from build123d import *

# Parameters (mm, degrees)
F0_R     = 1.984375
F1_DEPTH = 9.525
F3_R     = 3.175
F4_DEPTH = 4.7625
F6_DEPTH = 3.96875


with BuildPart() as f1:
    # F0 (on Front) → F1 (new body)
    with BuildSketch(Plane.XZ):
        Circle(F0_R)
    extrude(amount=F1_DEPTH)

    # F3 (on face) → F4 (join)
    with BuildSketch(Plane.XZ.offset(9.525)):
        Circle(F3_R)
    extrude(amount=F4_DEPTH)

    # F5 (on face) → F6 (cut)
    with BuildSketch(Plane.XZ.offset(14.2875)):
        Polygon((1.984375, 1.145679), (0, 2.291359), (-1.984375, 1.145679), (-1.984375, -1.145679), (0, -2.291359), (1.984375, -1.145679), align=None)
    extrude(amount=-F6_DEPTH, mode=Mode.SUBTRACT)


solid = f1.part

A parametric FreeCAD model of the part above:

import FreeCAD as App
import Part
import Sketcher

V = App.Vector
Q = App.Units.Quantity


def add_polygon(sketch, points):
    """Adds a closed chain of lines whose ends are joined by coincident constraints."""
    first, n = sketch.GeometryCount, len(points)
    for a, b in zip(points, points[1:] + points[:1]):
        sketch.addGeometry(Part.LineSegment(App.Vector(*a, 0), App.Vector(*b, 0)), False)
    for i in range(n):
        sketch.addConstraint(Sketcher.Constraint("Coincident", first + i, 2, first + (i + 1) % n, 1))

doc = App.newDocument("Part")
body = doc.addObject("PartDesign::Body", "Body")

# Sketch on XZ plane
sketch1 = body.newObject("Sketcher::SketchObject", "Sketch")
sketch1.AttachmentSupport = (doc.getObject("XZ_Plane"), [""])
sketch1.MapMode = "FlatFace"
sketch1.addGeometry(Part.Circle(V(0, 0, 0), V(0, 0, 1), 2), False)
sketch1.addConstraint(Sketcher.Constraint("Coincident", 0, 3, -1, 1))
sketch1.addConstraint(Sketcher.Constraint("Diameter", 0, Q("0.15625 in")))
pad1 = body.newObject("PartDesign::Pad", "Pad")
pad1.Profile = sketch1
pad1.Length = Q("0.375 in")

# Sketch on XZ plane
sketch2 = body.newObject("Sketcher::SketchObject", "Sketch001")
sketch2.AttachmentSupport = (doc.getObject("XZ_Plane"), [""])
sketch2.MapMode = "FlatFace"
sketch2.AttachmentOffset = App.Placement(V(0, 0, 0.375 * 25.4), App.Rotation())
sketch2.addGeometry(Part.Circle(V(0, 0, 0), V(0, 0, 1), 3.2), False)
sketch2.addConstraint(Sketcher.Constraint("Coincident", 0, 3, -1, 1))
sketch2.addConstraint(Sketcher.Constraint("Diameter", 0, Q("0.25 in")))
pad2 = body.newObject("PartDesign::Pad", "Pad001")
pad2.Profile = sketch2
pad2.Length = Q("0.1875 in")

# Sketch on XZ plane
sketch3 = body.newObject("Sketcher::SketchObject", "Sketch002")
sketch3.AttachmentSupport = (doc.getObject("XZ_Plane"), [""])
sketch3.MapMode = "FlatFace"
sketch3.AttachmentOffset = App.Placement(V(0, 0, 0.5625 * 25.4), App.Rotation())
add_polygon(sketch3, [(2, 1.1), (0, 2.3), (-2, 1.1), (-2, -1.1), (0, -2.3), (2, -1.1)])  # lines 0-5
sketch3.addConstraint(Sketcher.Constraint("Vertical", 2))
sketch3.addConstraint(Sketcher.Constraint("Vertical", 5))
sketch3.addConstraint(Sketcher.Constraint("Symmetric", 0, 2, 3, 2, -1, 1))
sketch3.addConstraint(Sketcher.Constraint("Symmetric", 1, 2, 4, 2, -1, 1))
sketch3.addConstraint(Sketcher.Constraint("PointOnObject", 0, 2, -2))
sketch3.addConstraint(Sketcher.Constraint("Parallel", 0, 3))
sketch3.addConstraint(Sketcher.Constraint("Horizontal", 2, 2, 4, 2))
sketch3.addConstraint(Sketcher.Constraint("Angle", 0, Q("149.999988 deg")))
sketch3.addConstraint(Sketcher.Constraint("DistanceX", 1, 2, -1, 1, Q("0.078125 in")))
sketch3.addConstraint(Sketcher.Constraint("DistanceY", 2, 2, 2, 1, 2.291358))
pocket1 = body.newObject("PartDesign::Pocket", "Pocket")
pocket1.Profile = sketch3
pocket1.Length = Q("0.15625 in")

doc.recompute()
